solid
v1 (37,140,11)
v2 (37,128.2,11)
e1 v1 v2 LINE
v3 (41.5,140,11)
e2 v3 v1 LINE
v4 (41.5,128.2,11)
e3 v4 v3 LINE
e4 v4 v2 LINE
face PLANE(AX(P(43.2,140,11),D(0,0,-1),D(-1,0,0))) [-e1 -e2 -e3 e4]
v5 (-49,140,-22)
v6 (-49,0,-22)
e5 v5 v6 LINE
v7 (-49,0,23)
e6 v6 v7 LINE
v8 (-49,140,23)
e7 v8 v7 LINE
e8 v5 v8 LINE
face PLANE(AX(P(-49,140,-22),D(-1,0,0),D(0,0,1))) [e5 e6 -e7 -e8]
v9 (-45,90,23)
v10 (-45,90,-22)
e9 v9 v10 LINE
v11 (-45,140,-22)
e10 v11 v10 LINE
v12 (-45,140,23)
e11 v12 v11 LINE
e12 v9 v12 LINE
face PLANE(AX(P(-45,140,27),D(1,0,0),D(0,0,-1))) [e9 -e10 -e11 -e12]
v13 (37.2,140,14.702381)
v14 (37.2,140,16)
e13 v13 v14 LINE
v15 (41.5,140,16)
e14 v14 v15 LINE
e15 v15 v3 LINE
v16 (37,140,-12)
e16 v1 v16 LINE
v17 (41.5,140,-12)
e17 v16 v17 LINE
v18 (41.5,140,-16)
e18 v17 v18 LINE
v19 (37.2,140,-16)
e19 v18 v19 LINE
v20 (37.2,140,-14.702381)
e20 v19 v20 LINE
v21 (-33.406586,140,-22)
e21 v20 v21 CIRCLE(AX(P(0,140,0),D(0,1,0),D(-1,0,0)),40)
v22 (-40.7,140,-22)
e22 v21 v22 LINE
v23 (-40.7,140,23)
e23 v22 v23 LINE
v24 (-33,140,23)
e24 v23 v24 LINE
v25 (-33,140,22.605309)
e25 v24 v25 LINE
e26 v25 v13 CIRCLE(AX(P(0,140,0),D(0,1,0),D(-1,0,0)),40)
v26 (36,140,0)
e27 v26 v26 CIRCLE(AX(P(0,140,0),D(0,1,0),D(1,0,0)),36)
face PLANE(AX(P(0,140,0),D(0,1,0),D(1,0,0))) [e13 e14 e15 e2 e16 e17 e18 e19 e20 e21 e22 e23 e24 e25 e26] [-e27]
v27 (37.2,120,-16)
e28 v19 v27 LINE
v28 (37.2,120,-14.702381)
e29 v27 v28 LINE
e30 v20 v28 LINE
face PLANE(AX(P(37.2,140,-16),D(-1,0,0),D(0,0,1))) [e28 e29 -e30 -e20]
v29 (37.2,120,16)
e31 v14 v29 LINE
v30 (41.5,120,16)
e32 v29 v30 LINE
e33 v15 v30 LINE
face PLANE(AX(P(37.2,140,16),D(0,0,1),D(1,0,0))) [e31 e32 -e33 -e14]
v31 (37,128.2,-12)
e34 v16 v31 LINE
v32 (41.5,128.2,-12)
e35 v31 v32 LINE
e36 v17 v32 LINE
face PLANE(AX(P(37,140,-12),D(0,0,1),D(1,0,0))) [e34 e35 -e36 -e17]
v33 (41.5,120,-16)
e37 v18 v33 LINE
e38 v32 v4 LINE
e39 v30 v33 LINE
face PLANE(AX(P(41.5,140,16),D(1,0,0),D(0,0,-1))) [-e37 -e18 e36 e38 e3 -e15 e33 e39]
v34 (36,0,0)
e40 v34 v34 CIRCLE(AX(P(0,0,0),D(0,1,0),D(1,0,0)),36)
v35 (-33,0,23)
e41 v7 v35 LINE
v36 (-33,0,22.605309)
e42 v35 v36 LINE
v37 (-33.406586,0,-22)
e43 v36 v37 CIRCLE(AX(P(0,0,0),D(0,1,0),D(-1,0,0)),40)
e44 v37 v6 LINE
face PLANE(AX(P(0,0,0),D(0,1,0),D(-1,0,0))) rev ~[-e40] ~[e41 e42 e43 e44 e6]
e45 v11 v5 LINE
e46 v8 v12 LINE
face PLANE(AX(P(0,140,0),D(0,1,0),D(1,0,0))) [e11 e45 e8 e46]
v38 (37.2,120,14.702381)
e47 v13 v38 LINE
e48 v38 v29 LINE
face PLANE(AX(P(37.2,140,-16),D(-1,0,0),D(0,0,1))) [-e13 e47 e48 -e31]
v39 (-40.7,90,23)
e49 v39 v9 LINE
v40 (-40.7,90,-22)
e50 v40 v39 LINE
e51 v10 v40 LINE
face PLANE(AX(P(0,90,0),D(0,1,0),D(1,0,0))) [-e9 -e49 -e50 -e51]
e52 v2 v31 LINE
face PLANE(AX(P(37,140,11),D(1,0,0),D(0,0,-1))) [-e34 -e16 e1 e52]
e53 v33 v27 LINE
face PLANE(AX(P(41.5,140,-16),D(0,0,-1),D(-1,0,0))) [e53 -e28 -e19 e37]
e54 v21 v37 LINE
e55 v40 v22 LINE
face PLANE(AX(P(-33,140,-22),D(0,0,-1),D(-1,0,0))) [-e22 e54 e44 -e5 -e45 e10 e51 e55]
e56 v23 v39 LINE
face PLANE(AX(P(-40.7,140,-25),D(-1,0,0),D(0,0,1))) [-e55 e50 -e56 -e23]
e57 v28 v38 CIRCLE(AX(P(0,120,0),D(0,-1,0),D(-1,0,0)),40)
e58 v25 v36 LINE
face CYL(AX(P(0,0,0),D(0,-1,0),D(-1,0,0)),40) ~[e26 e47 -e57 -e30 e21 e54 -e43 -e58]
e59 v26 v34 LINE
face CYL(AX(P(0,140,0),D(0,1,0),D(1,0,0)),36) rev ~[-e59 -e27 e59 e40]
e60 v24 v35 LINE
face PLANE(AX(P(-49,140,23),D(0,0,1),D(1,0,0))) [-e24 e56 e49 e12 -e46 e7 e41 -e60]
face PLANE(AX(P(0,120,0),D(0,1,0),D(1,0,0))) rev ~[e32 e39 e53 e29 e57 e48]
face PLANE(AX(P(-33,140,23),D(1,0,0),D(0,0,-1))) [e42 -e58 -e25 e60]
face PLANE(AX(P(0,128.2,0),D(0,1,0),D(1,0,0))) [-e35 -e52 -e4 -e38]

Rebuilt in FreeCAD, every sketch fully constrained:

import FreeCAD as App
import Part
import Sketcher
from FreeCAD import Vector

doc = App.newDocument("Part")
body = doc.addObject("PartDesign::Body", "Body")

# Sketch on XZ plane
sketch1 = doc.addObject("Sketcher::SketchObject", "Sketch")
body.addObject(sketch1)
sketch1.AttachmentSupport = (doc.XZ_Plane, [""])
sketch1.MapMode = "FlatFace"
sketch1.addGeometry(Part.Circle(Vector(0, 0, 0), Vector(0, 0, 1), 40), False)
sketch1.addConstraint(Sketcher.Constraint("Coincident", 0, 3, -1, 1))
sketch1.addConstraint(Sketcher.Constraint("Diameter", 0, 80.0))
pad1 = doc.addObject("PartDesign::Pad", "Pad")
body.addObject(pad1)
pad1.Profile = sketch1
pad1.Length = 140
pad1.Reversed = True

# Sketch on XZ plane
sketch2 = doc.addObject("Sketcher::SketchObject", "Sketch001")
body.addObject(sketch2)
sketch2.AttachmentSupport = (doc.XZ_Plane, [""])
sketch2.MapMode = "FlatFace"
sketch2.AttachmentOffset = App.Placement(Vector(0, 0, -140), App.Rotation())
sketch2.addGeometry(Part.LineSegment(Vector(-49, -22, 0), Vector(-49, 23, 0)), False)
sketch2.addGeometry(Part.LineSegment(Vector(-49, 23, 0), Vector(-33, 23, 0)), False)
sketch2.addGeometry(Part.LineSegment(Vector(-33, 23, 0), Vector(-33, -22, 0)), False)
sketch2.addGeometry(Part.LineSegment(Vector(-33, -22, 0), Vector(-49, -22, 0)), False)
sketch2.addConstraint(Sketcher.Constraint("Coincident", 0, 2, 1, 1))
sketch2.addConstraint(Sketcher.Constraint("Coincident", 1, 2, 2, 1))
sketch2.addConstraint(Sketcher.Constraint("Coincident", 2, 2, 3, 1))
sketch2.addConstraint(Sketcher.Constraint("Coincident", 3, 2, 0, 1))
sketch2.addConstraint(Sketcher.Constraint("Vertical", 0))
sketch2.addConstraint(Sketcher.Constraint("Horizontal", 1))
sketch2.addConstraint(Sketcher.Constraint("Vertical", 2))
sketch2.addConstraint(Sketcher.Constraint("Horizontal", 3))
sketch2.addConstraint(Sketcher.Constraint("DistanceX", 1, 1, 1, 2, 16.0))
sketch2.addConstraint(Sketcher.Constraint("DistanceY", 0, 1, 0, 2, 45.0))
sketch2.addConstraint(Sketcher.Constraint("DistanceX", 0, 2, -1, 1, 49.0))
sketch2.addConstraint(Sketcher.Constraint("DistanceY", -1, 1, 0, 2, 23.0))
pad2 = doc.addObject("PartDesign::Pad", "Pad001")
body.addObject(pad2)
pad2.Profile = sketch2
pad2.Length = 140

# Sketch on XZ plane
sketch3 = doc.addObject("Sketcher::SketchObject", "Sketch002")
body.addObject(sketch3)
sketch3.AttachmentSupport = (doc.XZ_Plane, [""])
sketch3.MapMode = "FlatFace"
sketch3.AttachmentOffset = App.Placement(Vector(0, 0, -140), App.Rotation())
sketch3.addGeometry(Part.Circle(Vector(0, 0, 0), Vector(0, 0, 1), 36), False)
sketch3.addConstraint(Sketcher.Constraint("Coincident", 0, 3, -1, 1))
sketch3.addConstraint(Sketcher.Constraint("Diameter", 0, 72.0))
pocket1 = doc.addObject("PartDesign::Pocket", "Pocket")
body.addObject(pocket1)
pocket1.Profile = sketch3
pocket1.Length = 140
pocket1.Reversed = True

# Sketch on XZ plane
sketch4 = doc.addObject("Sketcher::SketchObject", "Sketch003")
body.addObject(sketch4)
sketch4.AttachmentSupport = (doc.XZ_Plane, [""])
sketch4.MapMode = "FlatFace"
sketch4.AttachmentOffset = App.Placement(Vector(0, 0, -140), App.Rotation())
sketch4.addGeometry(Part.LineSegment(Vector(-40.7, -25, 0), Vector(-45, -25, 0)), False)
sketch4.addGeometry(Part.LineSegment(Vector(-45, -25, 0), Vector(-45, 27, 0)), False)
sketch4.addGeometry(Part.LineSegment(Vector(-45, 27, 0), Vector(-40.7, 27, 0)), False)
sketch4.addGeometry(Part.LineSegment(Vector(-40.7, 27, 0), Vector(-40.7, -25, 0)), False)
sketch4.addConstraint(Sketcher.Constraint("Coincident", 0, 2, 1, 1))
sketch4.addConstraint(Sketcher.Constraint("Coincident", 1, 2, 2, 1))
sketch4.addConstraint(Sketcher.Constraint("Coincident", 2, 2, 3, 1))
sketch4.addConstraint(Sketcher.Constraint("Coincident", 3, 2, 0, 1))
sketch4.addConstraint(Sketcher.Constraint("Horizontal", 0))
sketch4.addConstraint(Sketcher.Constraint("Vertical", 1))
sketch4.addConstraint(Sketcher.Constraint("Horizontal", 2))
sketch4.addConstraint(Sketcher.Constraint("Vertical", 3))
sketch4.addConstraint(Sketcher.Constraint("DistanceX", 0, 2, 0, 1, 4.3))
sketch4.addConstraint(Sketcher.Constraint("DistanceY", 1, 1, 1, 2, 52.0))
sketch4.addConstraint(Sketcher.Constraint("DistanceX", 0, 2, -1, 1, 45.0))
sketch4.addConstraint(Sketcher.Constraint("DistanceY", 0, 2, -1, 1, 25.0))
pocket2 = doc.addObject("PartDesign::Pocket", "Pocket001")
body.addObject(pocket2)
pocket2.Profile = sketch4
pocket2.Length = 50
pocket2.Reversed = True

# Sketch on XZ plane
sketch5 = doc.addObject("Sketcher::SketchObject", "Sketch004")
body.addObject(sketch5)
sketch5.AttachmentSupport = (doc.XZ_Plane, [""])
sketch5.MapMode = "FlatFace"
sketch5.AttachmentOffset = App.Placement(Vector(0, 0, -140), App.Rotation())
sketch5.addGeometry(Part.LineSegment(Vector(37.2, -16, 0), Vector(37.2, 16, 0)), False)
sketch5.addGeometry(Part.LineSegment(Vector(37.2, 16, 0), Vector(41.5, 16, 0)), False)
sketch5.addGeometry(Part.LineSegment(Vector(41.5, 16, 0), Vector(41.5, -16, 0)), False)
sketch5.addGeometry(Part.LineSegment(Vector(41.5, -16, 0), Vector(37.2, -16, 0)), False)
sketch5.addConstraint(Sketcher.Constraint("Coincident", 0, 2, 1, 1))
sketch5.addConstraint(Sketcher.Constraint("Coincident", 1, 2, 2, 1))
sketch5.addConstraint(Sketcher.Constraint("Coincident", 2, 2, 3, 1))
sketch5.addConstraint(Sketcher.Constraint("Coincident", 3, 2, 0, 1))
sketch5.addConstraint(Sketcher.Constraint("Vertical", 0))
sketch5.addConstraint(Sketcher.Constraint("Horizontal", 1))
sketch5.addConstraint(Sketcher.Constraint("Vertical", 2))
sketch5.addConstraint(Sketcher.Constraint("Horizontal", 3))
sketch5.addConstraint(Sketcher.Constraint("DistanceY", 0, 1, 0, 2, 32.0))
sketch5.addConstraint(Sketcher.Constraint("DistanceX", 1, 1, 1, 2, 4.3))
sketch5.addConstraint(Sketcher.Constraint("DistanceY", -1, 1, 0, 2, 16.0))
sketch5.addConstraint(Sketcher.Constraint("DistanceX", -1, 1, 0, 2, 37.2))
pad3 = doc.addObject("PartDesign::Pad", "Pad002")
body.addObject(pad3)
pad3.Profile = sketch5
pad3.Length = 20

# Sketch on XZ plane
sketch6 = doc.addObject("Sketcher::SketchObject", "Sketch005")
body.addObject(sketch6)
sketch6.AttachmentSupport = (doc.XZ_Plane, [""])
sketch6.MapMode = "FlatFace"
sketch6.AttachmentOffset = App.Placement(Vector(0, 0, -140), App.Rotation())
sketch6.addGeometry(Part.LineSegment(Vector(43, -12, 0), Vector(37, -12, 0)), False)
sketch6.addGeometry(Part.LineSegment(Vector(37, -12, 0), Vector(37, 11, 0)), False)
sketch6.addGeometry(Part.LineSegment(Vector(37, 11, 0), Vector(43, 11, 0)), False)
sketch6.addGeometry(Part.LineSegment(Vector(43, 11, 0), Vector(43, -12, 0)), False)
sketch6.addConstraint(Sketcher.Constraint("Coincident", 0, 2, 1, 1))
sketch6.addConstraint(Sketcher.Constraint("Coincident", 1, 2, 2, 1))
sketch6.addConstraint(Sketcher.Constraint("Coincident", 2, 2, 3, 1))
sketch6.addConstraint(Sketcher.Constraint("Coincident", 3, 2, 0, 1))
sketch6.addConstraint(Sketcher.Constraint("Horizontal", 0))
sketch6.addConstraint(Sketcher.Constraint("Vertical", 1))
sketch6.addConstraint(Sketcher.Constraint("Horizontal", 2))
sketch6.addConstraint(Sketcher.Constraint("Vertical", 3))
sketch6.addConstraint(Sketcher.Constraint("DistanceY", 1, 1, 1, 2, 23.0))
sketch6.addConstraint(Sketcher.Constraint("DistanceX", 0, 2, 0, 1, 6.2))
sketch6.addConstraint(Sketcher.Constraint("DistanceX", -1, 1, 0, 2, 37.0))
sketch6.addConstraint(Sketcher.Constraint("DistanceY", 0, 2, -1, 1, 12.0))
pocket3 = doc.addObject("PartDesign::Pocket", "Pocket002")
body.addObject(pocket3)
pocket3.Profile = sketch6
pocket3.Length = 11.8
pocket3.Reversed = True

doc.recompute()
